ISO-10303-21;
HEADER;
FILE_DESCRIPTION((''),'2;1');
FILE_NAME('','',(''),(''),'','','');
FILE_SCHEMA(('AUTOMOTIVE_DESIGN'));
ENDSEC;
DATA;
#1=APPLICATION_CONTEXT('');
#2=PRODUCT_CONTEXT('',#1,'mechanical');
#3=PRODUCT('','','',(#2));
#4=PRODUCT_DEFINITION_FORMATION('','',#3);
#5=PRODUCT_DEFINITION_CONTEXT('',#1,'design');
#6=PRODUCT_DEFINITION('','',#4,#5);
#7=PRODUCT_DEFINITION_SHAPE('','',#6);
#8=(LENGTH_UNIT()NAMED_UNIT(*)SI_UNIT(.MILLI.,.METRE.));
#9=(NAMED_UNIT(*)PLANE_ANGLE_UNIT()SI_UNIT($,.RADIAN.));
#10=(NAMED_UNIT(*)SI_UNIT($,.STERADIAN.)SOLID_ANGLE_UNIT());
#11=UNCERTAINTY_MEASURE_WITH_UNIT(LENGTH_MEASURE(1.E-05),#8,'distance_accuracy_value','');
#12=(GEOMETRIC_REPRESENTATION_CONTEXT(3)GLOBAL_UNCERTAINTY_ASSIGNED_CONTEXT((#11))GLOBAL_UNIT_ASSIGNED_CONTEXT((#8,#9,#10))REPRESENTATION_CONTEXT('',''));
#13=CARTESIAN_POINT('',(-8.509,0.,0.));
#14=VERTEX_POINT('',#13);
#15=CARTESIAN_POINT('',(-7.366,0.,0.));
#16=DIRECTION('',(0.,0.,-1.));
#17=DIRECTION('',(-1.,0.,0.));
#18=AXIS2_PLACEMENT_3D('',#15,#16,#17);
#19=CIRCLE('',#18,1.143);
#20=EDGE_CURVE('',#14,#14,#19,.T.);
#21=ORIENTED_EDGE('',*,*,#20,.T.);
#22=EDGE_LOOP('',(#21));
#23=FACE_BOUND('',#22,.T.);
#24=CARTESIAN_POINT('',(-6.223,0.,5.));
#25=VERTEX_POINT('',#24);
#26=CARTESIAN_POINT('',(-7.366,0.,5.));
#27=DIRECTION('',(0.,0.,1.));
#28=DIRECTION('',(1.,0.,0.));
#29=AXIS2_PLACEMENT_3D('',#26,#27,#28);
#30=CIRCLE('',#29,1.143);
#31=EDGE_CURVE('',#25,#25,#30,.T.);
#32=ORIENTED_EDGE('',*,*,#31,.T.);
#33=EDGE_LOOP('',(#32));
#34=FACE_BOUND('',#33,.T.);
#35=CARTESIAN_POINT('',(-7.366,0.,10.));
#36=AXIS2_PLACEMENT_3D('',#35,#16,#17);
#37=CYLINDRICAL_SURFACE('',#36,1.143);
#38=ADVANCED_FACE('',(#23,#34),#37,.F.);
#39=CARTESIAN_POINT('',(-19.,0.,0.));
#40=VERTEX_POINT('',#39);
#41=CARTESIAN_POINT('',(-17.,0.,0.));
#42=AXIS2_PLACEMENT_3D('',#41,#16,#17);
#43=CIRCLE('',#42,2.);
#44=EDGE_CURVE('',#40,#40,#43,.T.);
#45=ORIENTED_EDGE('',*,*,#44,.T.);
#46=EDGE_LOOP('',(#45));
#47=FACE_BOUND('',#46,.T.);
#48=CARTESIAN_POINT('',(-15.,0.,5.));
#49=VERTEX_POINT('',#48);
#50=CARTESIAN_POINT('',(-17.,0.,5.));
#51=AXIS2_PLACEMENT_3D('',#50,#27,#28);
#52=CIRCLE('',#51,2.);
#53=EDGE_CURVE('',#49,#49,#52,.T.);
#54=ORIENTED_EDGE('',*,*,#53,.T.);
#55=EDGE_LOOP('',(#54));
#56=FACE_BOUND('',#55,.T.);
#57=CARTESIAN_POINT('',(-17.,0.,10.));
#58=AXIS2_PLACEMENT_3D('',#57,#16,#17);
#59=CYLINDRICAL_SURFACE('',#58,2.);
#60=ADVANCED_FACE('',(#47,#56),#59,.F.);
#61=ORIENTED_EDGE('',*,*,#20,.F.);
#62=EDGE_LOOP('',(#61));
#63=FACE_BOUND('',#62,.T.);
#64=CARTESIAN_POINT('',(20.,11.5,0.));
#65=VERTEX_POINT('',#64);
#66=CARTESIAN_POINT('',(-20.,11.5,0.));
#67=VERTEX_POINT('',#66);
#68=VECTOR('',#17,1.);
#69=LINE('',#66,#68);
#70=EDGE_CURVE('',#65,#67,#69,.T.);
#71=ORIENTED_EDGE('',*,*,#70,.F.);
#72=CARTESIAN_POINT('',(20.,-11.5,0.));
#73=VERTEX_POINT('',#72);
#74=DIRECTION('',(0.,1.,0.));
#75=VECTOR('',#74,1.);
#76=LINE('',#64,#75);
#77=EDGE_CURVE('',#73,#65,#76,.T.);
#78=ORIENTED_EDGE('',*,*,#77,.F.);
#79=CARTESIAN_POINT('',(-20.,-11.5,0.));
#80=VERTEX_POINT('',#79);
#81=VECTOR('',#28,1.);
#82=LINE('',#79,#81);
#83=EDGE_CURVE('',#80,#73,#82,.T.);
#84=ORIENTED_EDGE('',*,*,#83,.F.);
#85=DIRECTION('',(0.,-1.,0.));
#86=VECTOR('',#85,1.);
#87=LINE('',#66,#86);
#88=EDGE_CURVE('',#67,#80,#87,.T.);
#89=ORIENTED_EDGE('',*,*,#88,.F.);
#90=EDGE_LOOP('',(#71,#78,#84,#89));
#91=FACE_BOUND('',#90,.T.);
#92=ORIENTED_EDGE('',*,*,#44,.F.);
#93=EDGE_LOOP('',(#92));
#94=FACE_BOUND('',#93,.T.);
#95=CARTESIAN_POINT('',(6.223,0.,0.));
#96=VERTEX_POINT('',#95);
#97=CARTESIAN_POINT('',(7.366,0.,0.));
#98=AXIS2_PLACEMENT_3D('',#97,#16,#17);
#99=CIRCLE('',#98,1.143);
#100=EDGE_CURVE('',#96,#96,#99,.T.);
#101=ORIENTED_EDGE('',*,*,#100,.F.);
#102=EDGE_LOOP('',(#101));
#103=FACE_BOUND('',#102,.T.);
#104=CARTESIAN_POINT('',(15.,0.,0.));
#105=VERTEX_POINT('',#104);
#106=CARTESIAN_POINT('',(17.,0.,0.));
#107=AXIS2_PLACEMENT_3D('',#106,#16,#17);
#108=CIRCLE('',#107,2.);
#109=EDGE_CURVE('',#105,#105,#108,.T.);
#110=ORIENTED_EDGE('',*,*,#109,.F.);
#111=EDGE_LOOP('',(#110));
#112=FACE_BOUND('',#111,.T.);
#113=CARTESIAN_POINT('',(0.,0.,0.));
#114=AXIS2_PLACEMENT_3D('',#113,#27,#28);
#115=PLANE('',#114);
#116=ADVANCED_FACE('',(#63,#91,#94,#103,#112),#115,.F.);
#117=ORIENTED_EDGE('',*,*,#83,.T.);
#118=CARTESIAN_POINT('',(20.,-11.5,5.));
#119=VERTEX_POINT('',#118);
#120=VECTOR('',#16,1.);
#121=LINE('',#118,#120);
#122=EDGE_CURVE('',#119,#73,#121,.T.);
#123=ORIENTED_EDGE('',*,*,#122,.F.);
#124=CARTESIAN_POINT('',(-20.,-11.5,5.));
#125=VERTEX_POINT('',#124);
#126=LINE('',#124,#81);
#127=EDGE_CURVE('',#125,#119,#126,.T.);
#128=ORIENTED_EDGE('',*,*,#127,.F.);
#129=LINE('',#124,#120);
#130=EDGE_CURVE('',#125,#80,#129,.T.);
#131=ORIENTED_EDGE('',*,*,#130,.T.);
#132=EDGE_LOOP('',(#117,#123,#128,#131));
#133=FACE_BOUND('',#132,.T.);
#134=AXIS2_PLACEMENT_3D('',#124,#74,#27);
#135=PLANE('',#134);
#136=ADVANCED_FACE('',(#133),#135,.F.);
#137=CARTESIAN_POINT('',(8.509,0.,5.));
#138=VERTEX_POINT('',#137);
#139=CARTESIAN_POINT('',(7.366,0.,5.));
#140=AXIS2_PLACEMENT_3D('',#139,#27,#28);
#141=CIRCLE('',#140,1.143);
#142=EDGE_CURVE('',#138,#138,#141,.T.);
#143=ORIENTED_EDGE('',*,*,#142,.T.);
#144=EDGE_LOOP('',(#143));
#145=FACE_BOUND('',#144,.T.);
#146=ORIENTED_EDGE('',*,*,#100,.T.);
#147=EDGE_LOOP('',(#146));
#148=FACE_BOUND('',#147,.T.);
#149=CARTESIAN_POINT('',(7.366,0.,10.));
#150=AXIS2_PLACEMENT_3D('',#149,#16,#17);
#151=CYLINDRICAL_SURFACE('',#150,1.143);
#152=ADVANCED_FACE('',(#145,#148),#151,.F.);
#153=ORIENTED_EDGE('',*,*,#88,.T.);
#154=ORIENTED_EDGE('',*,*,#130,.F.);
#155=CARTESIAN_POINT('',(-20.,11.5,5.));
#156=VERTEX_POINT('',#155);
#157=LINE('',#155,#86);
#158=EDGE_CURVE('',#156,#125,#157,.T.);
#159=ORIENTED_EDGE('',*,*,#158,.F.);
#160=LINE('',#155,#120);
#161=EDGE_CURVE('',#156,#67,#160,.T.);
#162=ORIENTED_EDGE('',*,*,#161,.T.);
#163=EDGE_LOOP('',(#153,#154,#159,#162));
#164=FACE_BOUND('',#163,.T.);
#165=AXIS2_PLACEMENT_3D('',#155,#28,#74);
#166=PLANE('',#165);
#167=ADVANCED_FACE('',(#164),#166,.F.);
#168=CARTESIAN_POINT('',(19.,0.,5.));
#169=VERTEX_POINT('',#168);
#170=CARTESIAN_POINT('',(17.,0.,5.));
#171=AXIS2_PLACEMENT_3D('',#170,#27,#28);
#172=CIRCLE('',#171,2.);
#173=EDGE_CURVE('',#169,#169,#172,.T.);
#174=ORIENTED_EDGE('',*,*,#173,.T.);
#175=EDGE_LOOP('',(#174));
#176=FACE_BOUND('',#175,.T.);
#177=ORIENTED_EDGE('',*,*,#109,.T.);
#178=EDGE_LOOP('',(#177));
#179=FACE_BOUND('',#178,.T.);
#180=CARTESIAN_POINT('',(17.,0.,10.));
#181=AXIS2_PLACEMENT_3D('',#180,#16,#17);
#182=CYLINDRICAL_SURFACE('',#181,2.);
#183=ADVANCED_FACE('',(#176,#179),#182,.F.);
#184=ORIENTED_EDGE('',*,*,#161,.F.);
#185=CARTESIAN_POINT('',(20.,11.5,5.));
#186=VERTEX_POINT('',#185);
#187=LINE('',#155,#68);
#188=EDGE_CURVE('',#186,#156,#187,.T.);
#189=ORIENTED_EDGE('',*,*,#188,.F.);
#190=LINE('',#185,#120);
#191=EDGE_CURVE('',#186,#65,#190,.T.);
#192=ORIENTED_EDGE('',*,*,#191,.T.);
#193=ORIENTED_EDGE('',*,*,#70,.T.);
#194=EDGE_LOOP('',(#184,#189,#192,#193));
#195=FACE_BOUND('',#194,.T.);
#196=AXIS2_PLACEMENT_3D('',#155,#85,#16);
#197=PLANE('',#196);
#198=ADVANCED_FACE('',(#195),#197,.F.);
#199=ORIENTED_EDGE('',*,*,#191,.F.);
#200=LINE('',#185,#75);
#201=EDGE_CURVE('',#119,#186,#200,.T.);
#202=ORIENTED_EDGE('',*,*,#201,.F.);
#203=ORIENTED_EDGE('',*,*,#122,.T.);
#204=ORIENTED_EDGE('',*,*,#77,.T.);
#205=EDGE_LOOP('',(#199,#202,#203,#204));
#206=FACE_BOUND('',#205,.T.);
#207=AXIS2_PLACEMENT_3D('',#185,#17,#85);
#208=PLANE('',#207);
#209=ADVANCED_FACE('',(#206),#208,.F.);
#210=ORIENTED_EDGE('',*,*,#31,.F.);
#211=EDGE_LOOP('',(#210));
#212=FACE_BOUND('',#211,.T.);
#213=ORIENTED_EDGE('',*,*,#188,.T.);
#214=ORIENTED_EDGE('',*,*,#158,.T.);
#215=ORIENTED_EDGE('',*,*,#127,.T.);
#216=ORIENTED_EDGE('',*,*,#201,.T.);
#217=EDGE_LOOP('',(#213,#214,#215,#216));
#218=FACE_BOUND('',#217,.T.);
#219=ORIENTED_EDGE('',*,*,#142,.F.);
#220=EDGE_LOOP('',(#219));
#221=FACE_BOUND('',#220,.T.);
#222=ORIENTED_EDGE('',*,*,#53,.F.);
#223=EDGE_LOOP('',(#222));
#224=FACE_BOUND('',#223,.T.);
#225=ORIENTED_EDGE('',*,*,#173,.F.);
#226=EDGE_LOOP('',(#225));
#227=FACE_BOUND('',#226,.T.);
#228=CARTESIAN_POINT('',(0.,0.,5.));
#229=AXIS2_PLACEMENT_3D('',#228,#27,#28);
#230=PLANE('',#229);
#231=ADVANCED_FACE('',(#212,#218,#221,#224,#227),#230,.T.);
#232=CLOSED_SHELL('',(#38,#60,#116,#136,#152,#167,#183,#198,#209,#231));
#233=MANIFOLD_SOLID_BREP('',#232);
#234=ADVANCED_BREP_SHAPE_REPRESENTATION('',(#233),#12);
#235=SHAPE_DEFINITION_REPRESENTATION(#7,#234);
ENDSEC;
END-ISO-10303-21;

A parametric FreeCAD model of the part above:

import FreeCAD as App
import Part
import Sketcher
from FreeCAD import Vector
Q = App.Units.Quantity


def add_polygon(sketch, points):
    """Adds a closed chain of lines whose ends are joined by coincident constraints."""
    first, n = sketch.GeometryCount, len(points)
    for a, b in zip(points, points[1:] + points[:1]):
        sketch.addGeometry(Part.LineSegment(App.Vector(*a, 0), App.Vector(*b, 0)), False)
    for i in range(n):
        sketch.addConstraint(Sketcher.Constraint("Coincident", first + i, 2, first + (i + 1) % n, 1))

doc = App.newDocument("Part")
params = doc.addObject("Spreadsheet::Sheet", "Params")
for row, (alias, value) in enumerate([
    ("sketch1_width", "40 mm"),
    ("sketch1_height", "23 mm"),
    ("pad1_length", "5 mm"),
    ("sketch2_diameter", "4 mm"),
    ("pocket1_length", "10 mm"),
], start=1):
    params.set(f"A{row}", alias)
    params.set(f"B{row}", "=" + value)
    params.setAlias(f"B{row}", alias)

body = doc.addObject("PartDesign::Body", "Body")

sketch1 = doc.addObject("Sketcher::SketchObject", "Sketch")
body.addObject(sketch1)
sketch1.AttachmentSupport = (doc.XY_Plane, [""])
sketch1.MapMode = "FlatFace"
add_polygon(sketch1, [(-20, 12), (-20, -12), (20, -12), (20, 12)])
sketch1.addConstraint([
    Sketcher.Constraint("Vertical", 0),
    Sketcher.Constraint("Horizontal", 1),
    Sketcher.Constraint("Vertical", 2),
    Sketcher.Constraint("Horizontal", 3),
    Sketcher.Constraint("Symmetric", 0, 2, 2, 2, -1, 1),
    Sketcher.Constraint("DistanceX", 1, 1, 1, 2, Q("40 mm")),
    Sketcher.Constraint("DistanceY", 0, 2, 0, 1, Q("23 mm")),
])
sketch1.setExpression("Constraints[9]", "Params.sketch1_width")
sketch1.setExpression("Constraints[10]", "Params.sketch1_height")
pad1 = doc.addObject("PartDesign::Pad", "Pad")
body.addObject(pad1)
pad1.Profile = sketch1
pad1.setExpression("Length", "Params.pad1_length")

sketch2 = doc.addObject("Sketcher::SketchObject", "Sketch001")
body.addObject(sketch2)
sketch2.AttachmentSupport = (doc.XY_Plane, [""])
sketch2.MapMode = "FlatFace"
sketch2.addGeometry([
    Part.Circle(Vector(17, 0, 0), Vector(0, 0, 1), 2),
    Part.Circle(Vector(7.4, 0, 0), Vector(0, 0, 1), 1.1),
    Part.Circle(Vector(-7.4, 0, 0), Vector(0, 0, 1), 1.1),
    Part.Circle(Vector(-17, 0, 0), Vector(0, 0, 1), 2),
], False)
sketch2.addConstraint([
    Sketcher.Constraint("Equal", 1, 2),
    Sketcher.Constraint("Equal", 0, 3),
    Sketcher.Constraint("Symmetric", 1, 3, 2, 3, -1, 1),
    Sketcher.Constraint("Symmetric", 0, 3, 3, 3, -1, 1),
    Sketcher.Constraint("PointOnObject", 0, 3, -1),
    Sketcher.Constraint("PointOnObject", 1, 3, -1),
    Sketcher.Constraint("Diameter", 0, Q("4 mm")),
    Sketcher.Constraint("Diameter", 1, Q("2.286 mm")),
    Sketcher.Constraint("DistanceX", -1, 1, 0, 3, Q("17 mm")),
    Sketcher.Constraint("DistanceX", -1, 1, 1, 3, Q("7.366 mm")),
])
sketch2.setExpression("Constraints[6]", "Params.sketch2_diameter")
pocket1 = doc.addObject("PartDesign::Pocket", "Pocket")
body.addObject(pocket1)
pocket1.Profile = sketch2
pocket1.setExpression("Length", "Params.pocket1_length")
pocket1.Reversed = True

doc.recompute()
